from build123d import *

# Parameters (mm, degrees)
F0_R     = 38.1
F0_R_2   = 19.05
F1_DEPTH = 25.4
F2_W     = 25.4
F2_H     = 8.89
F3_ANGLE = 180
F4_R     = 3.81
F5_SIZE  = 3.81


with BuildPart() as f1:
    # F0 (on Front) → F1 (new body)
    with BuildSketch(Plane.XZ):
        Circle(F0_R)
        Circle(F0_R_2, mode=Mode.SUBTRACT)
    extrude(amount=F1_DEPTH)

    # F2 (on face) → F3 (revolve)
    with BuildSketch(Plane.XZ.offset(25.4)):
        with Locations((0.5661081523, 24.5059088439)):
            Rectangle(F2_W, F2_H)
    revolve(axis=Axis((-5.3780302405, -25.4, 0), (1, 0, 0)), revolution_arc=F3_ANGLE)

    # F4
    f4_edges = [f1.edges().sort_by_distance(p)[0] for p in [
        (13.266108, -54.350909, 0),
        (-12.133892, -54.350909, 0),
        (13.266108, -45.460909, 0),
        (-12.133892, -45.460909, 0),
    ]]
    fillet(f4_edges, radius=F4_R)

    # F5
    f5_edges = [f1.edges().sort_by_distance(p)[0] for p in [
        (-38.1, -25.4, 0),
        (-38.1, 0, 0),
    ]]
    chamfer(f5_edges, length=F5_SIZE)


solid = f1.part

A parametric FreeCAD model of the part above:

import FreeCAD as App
import Part
import Sketcher

V = App.Vector
Q = App.Units.Quantity


def edges_at(feature, points):
    """Names of the edges that pass closest to the given points."""
    edges = feature.Shape.Edges
    near = lambda p: min(range(len(edges)), key=lambda i: edges[i].distToShape(Part.Vertex(*p))[0])
    return sorted({f"Edge{near(p) + 1}" for p in points})


def add_polygon(sketch, points):
    """Adds a closed chain of lines whose ends are joined by coincident constraints."""
    first, n = sketch.GeometryCount, len(points)
    for a, b in zip(points, points[1:] + points[:1]):
        sketch.addGeometry(Part.LineSegment(App.Vector(*a, 0), App.Vector(*b, 0)), False)
    for i in range(n):
        sketch.addConstraint(Sketcher.Constraint("Coincident", first + i, 2, first + (i + 1) % n, 1))

doc = App.newDocument("Part")
body = doc.addObject("PartDesign::Body", "Body")

# Sketch on XZ plane
sketch1 = doc.addObject("Sketcher::SketchObject", "Sketch")
body.addObject(sketch1)
sketch1.AttachmentSupport = (doc.XZ_Plane, [""])
sketch1.MapMode = "FlatFace"
sketch1.addGeometry([
    Part.Circle(V(0, 0, 0), V(0, 0, 1), 38),
    Part.Circle(V(0, 0, 0), V(0, 0, 1), 19),
], False)
sketch1.addConstraint([
    Sketcher.Constraint("Coincident", 0, 3, -1, 1),
    Sketcher.Constraint("Coincident", 1, 3, -1, 1),
    Sketcher.Constraint("Diameter", 0, Q("3 in")),
    Sketcher.Constraint("Diameter", 1, Q("1.5 in")),
])
pad1 = doc.addObject("PartDesign::Pad", "Pad")
body.addObject(pad1)
pad1.Profile = sketch1
pad1.Length = Q("1 in")

# Sketch on XZ plane
sketch2 = doc.addObject("Sketcher::SketchObject", "Sketch001")
body.addObject(sketch2)
sketch2.AttachmentSupport = (doc.XZ_Plane, [""])
sketch2.MapMode = "FlatFace"
sketch2.AttachmentOffset = App.Placement(V(0, 0, 1 * 25.4), App.Rotation())
add_polygon(sketch2, [(-12, 29), (-12, 20), (13, 20), (13, 29)])  # lines 0-3
sketch2.addConstraint([
    Sketcher.Constraint("Vertical", 0),
    Sketcher.Constraint("Horizontal", 1),
    Sketcher.Constraint("Vertical", 2),
    Sketcher.Constraint("Horizontal", 3),
    Sketcher.Constraint("DistanceX", 1, 1, 1, 2, Q("1 in")),
    Sketcher.Constraint("DistanceY", 0, 2, 0, 1, Q("0.35 in")),
    Sketcher.Constraint("DistanceX", 0, 2, -1, 1, 12.133892),
    Sketcher.Constraint("DistanceY", -1, 1, 0, 2, 20.060909),
])
revolution = doc.addObject("PartDesign::Revolution", "Revolution")
body.addObject(revolution)
revolution.Profile = sketch2
revolution.ReferenceAxis = (sketch2, ["H_Axis"])
revolution.Angle = 180
doc.recompute()

fillet = doc.addObject("PartDesign::Fillet", "Fillet")
body.addObject(fillet)
fillet.Base = (revolution, edges_at(revolution, [
    (13.266, -54.351, 0),
    (-12.134, -54.351, 0),
    (13.266, -45.461, 0),
    (-12.134, -45.461, 0),
]))
fillet.Radius = Q("0.15 in")
doc.recompute()

chamfer = doc.addObject("PartDesign::Chamfer", "Chamfer")
body.addObject(chamfer)
chamfer.Base = (fillet, edges_at(fillet, [(-38.1, -25.4, 0), (-38.1, 0, 0)]))
chamfer.Size = Q("0.15 in")

doc.recompute()
